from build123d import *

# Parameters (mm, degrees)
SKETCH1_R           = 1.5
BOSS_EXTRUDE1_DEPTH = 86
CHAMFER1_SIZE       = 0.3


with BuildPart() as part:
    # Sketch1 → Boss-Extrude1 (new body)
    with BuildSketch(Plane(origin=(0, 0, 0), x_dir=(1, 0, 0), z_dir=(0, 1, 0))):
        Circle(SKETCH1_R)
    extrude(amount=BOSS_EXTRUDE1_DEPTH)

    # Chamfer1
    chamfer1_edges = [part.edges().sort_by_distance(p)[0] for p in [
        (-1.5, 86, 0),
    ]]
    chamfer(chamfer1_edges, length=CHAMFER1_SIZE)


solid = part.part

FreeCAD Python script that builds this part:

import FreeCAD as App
import Part
import Sketcher

V = App.Vector


def edges_at(feature, points):
    """Names of the edges that pass closest to the given points."""
    edges = feature.Shape.Edges
    near = lambda p: min(range(len(edges)), key=lambda i: edges[i].distToShape(Part.Vertex(*p))[0])
    return sorted({f"Edge{near(p) + 1}" for p in points})

doc = App.newDocument("Part")
body = doc.addObject("PartDesign::Body", "Body")

# Sketch on XZ plane
sketch1 = doc.addObject("Sketcher::SketchObject", "Sketch")
body.addObject(sketch1)
sketch1.AttachmentSupport = (doc.XZ_Plane, [""])
sketch1.MapMode = "FlatFace"
sketch1.addGeometry(Part.Circle(V(0, 0, 0), V(0, 0, 1), 1.5), False)
sketch1.addConstraint([
    Sketcher.Constraint("Coincident", 0, 3, -1, 1),
    Sketcher.Constraint("Diameter", 0, 3.0),
])
pad1 = doc.addObject("PartDesign::Pad", "Pad")
body.addObject(pad1)
pad1.Profile = sketch1
pad1.Length = 86
pad1.Reversed = True
doc.recompute()

chamfer = doc.addObject("PartDesign::Chamfer", "Chamfer")
body.addObject(chamfer)
chamfer.Base = (pad1, edges_at(pad1, [(-1.5, 86, 0)]))
chamfer.Size = 0.3

doc.recompute()
